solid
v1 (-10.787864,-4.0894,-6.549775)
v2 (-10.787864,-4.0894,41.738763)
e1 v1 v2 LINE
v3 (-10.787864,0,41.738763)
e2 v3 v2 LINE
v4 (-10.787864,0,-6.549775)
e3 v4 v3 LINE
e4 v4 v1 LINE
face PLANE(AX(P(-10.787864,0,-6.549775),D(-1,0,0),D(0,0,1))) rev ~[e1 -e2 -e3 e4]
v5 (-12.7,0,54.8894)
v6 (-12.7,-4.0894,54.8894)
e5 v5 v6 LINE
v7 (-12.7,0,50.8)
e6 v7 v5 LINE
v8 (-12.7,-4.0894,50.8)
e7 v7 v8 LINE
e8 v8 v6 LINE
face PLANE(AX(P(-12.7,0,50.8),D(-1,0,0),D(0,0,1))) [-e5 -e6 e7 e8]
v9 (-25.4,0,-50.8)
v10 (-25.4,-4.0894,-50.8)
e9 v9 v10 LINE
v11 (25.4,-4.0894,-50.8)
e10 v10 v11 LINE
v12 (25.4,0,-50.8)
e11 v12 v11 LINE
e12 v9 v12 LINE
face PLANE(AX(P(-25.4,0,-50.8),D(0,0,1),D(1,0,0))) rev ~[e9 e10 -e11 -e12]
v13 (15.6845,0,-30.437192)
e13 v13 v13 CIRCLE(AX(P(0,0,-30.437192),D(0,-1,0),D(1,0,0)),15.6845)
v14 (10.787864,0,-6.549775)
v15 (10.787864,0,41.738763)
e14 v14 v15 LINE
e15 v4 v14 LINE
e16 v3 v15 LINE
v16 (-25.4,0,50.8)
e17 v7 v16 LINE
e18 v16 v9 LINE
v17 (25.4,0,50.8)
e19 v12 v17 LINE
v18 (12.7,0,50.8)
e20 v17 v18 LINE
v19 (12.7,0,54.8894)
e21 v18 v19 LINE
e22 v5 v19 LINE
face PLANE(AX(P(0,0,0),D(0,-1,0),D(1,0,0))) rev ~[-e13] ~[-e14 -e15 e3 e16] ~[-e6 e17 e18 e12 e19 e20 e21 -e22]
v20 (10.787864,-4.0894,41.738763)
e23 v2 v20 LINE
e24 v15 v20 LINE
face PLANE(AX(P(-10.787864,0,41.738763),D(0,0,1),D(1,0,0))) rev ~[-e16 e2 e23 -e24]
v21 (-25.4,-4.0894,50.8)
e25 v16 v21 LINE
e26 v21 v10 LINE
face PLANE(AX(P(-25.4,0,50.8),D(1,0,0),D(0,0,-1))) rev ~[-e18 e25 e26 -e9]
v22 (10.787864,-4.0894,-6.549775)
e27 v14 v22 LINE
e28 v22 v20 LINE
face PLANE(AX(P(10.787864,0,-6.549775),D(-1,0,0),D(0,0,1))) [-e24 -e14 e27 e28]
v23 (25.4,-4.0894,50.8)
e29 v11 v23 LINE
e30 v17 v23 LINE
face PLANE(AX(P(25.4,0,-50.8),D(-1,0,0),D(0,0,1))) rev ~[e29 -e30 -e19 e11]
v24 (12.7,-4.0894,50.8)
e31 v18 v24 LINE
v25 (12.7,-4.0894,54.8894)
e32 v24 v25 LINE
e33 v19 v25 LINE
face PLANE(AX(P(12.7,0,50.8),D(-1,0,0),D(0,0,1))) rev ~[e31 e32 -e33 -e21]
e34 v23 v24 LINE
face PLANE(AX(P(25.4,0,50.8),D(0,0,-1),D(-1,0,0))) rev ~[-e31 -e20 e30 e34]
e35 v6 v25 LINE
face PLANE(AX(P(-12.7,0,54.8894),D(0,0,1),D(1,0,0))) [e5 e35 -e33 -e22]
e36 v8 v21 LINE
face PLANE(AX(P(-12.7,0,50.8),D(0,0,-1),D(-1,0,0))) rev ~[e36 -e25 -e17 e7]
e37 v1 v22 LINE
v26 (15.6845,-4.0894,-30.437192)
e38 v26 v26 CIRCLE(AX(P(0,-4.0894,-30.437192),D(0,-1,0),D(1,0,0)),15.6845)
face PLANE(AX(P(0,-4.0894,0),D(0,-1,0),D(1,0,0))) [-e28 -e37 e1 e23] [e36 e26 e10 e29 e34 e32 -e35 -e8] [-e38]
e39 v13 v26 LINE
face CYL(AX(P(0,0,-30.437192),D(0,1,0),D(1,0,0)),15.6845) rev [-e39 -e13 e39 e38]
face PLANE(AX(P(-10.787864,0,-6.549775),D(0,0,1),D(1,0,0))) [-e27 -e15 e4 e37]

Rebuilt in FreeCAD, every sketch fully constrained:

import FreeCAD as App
import Part
import Sketcher
Q = App.Units.Quantity

doc = App.newDocument("Part")
body = doc.addObject("PartDesign::Body", "Body")

sketch1 = doc.addObject("Sketcher::SketchObject", "Sketch")
body.addObject(sketch1)
sketch1.AttachmentSupport = (doc.XZ_Plane, [""])
sketch1.MapMode = "FlatFace"
sketch1.addGeometry(Part.LineSegment(App.Vector(-25.4, -50.8, 0), App.Vector(25.4, -50.8, 0)), False)
sketch1.addGeometry(Part.LineSegment(App.Vector(25.4, -50.8, 0), App.Vector(25.4, 50.8, 0)), False)
sketch1.addGeometry(Part.LineSegment(App.Vector(25.4, 50.8, 0), App.Vector(12.7, 50.8, 0)), False)
sketch1.addGeometry(Part.LineSegment(App.Vector(12.7, 50.8, 0), App.Vector(12.7, 54.8894, 0)), False)
sketch1.addGeometry(Part.LineSegment(App.Vector(12.7, 54.8894, 0), App.Vector(-12.7, 54.8894, 0)), False)
sketch1.addGeometry(Part.LineSegment(App.Vector(-12.7, 54.8894, 0), App.Vector(-12.7, 50.8, 0)), False)
sketch1.addGeometry(Part.LineSegment(App.Vector(-12.7, 50.8, 0), App.Vector(-25.4, 50.8, 0)), False)
sketch1.addGeometry(Part.LineSegment(App.Vector(-25.4, 50.8, 0), App.Vector(-25.4, -50.8, 0)), False)
sketch1.addGeometry(Part.Circle(App.Vector(0, -30.437192, 0), App.Vector(0, 0, 1), 15.6845), False)
sketch1.addGeometry(Part.LineSegment(App.Vector(10.787864, -6.549775, 0), App.Vector(-10.787864, -6.549775, 0)), False)
sketch1.addGeometry(Part.LineSegment(App.Vector(-10.787864, -6.549775, 0), App.Vector(-10.787864, 41.738763, 0)), False)
sketch1.addGeometry(Part.LineSegment(App.Vector(-10.787864, 41.738763, 0), App.Vector(10.787864, 41.738763, 0)), False)
sketch1.addGeometry(Part.LineSegment(App.Vector(10.787864, 41.738763, 0), App.Vector(10.787864, -6.549775, 0)), False)
sketch1.addConstraint(Sketcher.Constraint("Coincident", 0, 2, 1, 1))
sketch1.addConstraint(Sketcher.Constraint("Coincident", 1, 2, 2, 1))
sketch1.addConstraint(Sketcher.Constraint("Coincident", 2, 2, 3, 1))
sketch1.addConstraint(Sketcher.Constraint("Coincident", 3, 2, 4, 1))
sketch1.addConstraint(Sketcher.Constraint("Coincident", 4, 2, 5, 1))
sketch1.addConstraint(Sketcher.Constraint("Coincident", 5, 2, 6, 1))
sketch1.addConstraint(Sketcher.Constraint("Coincident", 6, 2, 7, 1))
sketch1.addConstraint(Sketcher.Constraint("Coincident", 7, 2, 0, 1))
sketch1.addConstraint(Sketcher.Constraint("Coincident", 9, 2, 10, 1))
sketch1.addConstraint(Sketcher.Constraint("Coincident", 10, 2, 11, 1))
sketch1.addConstraint(Sketcher.Constraint("Coincident", 11, 2, 12, 1))
sketch1.addConstraint(Sketcher.Constraint("Coincident", 12, 2, 9, 1))
sketch1.addConstraint(Sketcher.Constraint("Horizontal", 0))
sketch1.addConstraint(Sketcher.Constraint("Vertical", 1))
sketch1.addConstraint(Sketcher.Constraint("Horizontal", 2))
sketch1.addConstraint(Sketcher.Constraint("Vertical", 3))
sketch1.addConstraint(Sketcher.Constraint("Horizontal", 4))
sketch1.addConstraint(Sketcher.Constraint("Vertical", 5))
sketch1.addConstraint(Sketcher.Constraint("Horizontal", 6))
sketch1.addConstraint(Sketcher.Constraint("Vertical", 7))
sketch1.addConstraint(Sketcher.Constraint("Horizontal", 9))
sketch1.addConstraint(Sketcher.Constraint("Vertical", 10))
sketch1.addConstraint(Sketcher.Constraint("Horizontal", 11))
sketch1.addConstraint(Sketcher.Constraint("Vertical", 12))
sketch1.addConstraint(Sketcher.Constraint("Symmetric", 0, 2, 6, 2, -1, 1))
sketch1.addConstraint(Sketcher.Constraint("Symmetric", 2, 2, 5, 2, -2))
sketch1.addConstraint(Sketcher.Constraint("PointOnObject", 8, 3, -2))
sketch1.addConstraint(Sketcher.Constraint("DistanceX", 0, 1, 0, 2, Q("2 in")))
sketch1.addConstraint(Sketcher.Constraint("DistanceX", 4, 2, 4, 1, Q("1 in")))
sketch1.addConstraint(Sketcher.Constraint("DistanceY", 1, 1, 1, 2, Q("4 in")))
sketch1.addConstraint(Sketcher.Constraint("Diameter", 8, Q("1.235 in")))
sketch1.addConstraint(Sketcher.Constraint("DistanceY", 3, 1, 3, 2, Q("0.161 in")))
sketch1.addConstraint(Sketcher.Constraint("DistanceX", 9, 2, 9, 1, Q("21.575728 mm")))
sketch1.addConstraint(Sketcher.Constraint("DistanceY", 10, 1, 10, 2, Q("48.288538 mm")))
sketch1.addConstraint(Sketcher.Constraint("DistanceY", 8, 3, -1, 1, Q("30.437192 mm")))
sketch1.addConstraint(Sketcher.Constraint("DistanceX", 9, 2, -1, 1, Q("10.787864 mm")))
sketch1.addConstraint(Sketcher.Constraint("DistanceY", 9, 2, -1, 1, Q("6.549775 mm")))
pad1 = doc.addObject("PartDesign::Pad", "Pad")
body.addObject(pad1)
pad1.Profile = sketch1
pad1.Length = Q("0.161 in")

doc.recompute()
